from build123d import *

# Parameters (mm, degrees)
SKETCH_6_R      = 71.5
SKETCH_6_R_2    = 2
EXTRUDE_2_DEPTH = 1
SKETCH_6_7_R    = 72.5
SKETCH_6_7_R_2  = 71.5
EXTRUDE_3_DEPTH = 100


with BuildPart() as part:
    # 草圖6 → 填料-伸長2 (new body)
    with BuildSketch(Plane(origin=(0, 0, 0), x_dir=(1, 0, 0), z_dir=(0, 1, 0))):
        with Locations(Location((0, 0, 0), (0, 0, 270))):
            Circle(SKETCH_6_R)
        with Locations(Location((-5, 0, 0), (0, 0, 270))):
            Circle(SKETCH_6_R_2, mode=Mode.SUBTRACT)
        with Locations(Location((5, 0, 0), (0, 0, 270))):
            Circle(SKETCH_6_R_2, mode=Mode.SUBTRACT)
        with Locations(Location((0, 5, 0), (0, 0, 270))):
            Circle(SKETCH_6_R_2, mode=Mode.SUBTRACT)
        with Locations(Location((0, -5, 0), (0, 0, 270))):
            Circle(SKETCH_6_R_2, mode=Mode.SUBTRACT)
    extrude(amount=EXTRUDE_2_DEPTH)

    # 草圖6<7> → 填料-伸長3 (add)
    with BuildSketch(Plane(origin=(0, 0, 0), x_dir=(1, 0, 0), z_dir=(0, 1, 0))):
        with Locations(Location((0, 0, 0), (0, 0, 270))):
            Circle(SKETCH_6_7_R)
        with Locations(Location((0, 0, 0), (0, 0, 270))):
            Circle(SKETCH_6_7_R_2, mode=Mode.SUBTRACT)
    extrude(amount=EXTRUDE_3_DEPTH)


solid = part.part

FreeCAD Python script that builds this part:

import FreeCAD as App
import Part
import Sketcher

V = App.Vector
Q = App.Units.Quantity

doc = App.newDocument("Part")
body = doc.addObject("PartDesign::Body", "Body")

sketch1 = body.newObject("Sketcher::SketchObject", "Sketch")
sketch1.AttachmentSupport = (doc.getObject("XZ_Plane"), [""])
sketch1.MapMode = "FlatFace"
sketch1.addGeometry(Part.Circle(V(0, 0, 0), V(0, 0, 1), 71.5), False)
sketch1.addGeometry(Part.Circle(V(0, -5, 0), V(0, 0, 1), 2), False)
sketch1.addGeometry(Part.Circle(V(-5, 0, 0), V(0, 0, 1), 2), False)
sketch1.addGeometry(Part.Circle(V(5, 0, 0), V(0, 0, 1), 2), False)
sketch1.addGeometry(Part.Circle(V(0, 5, 0), V(0, 0, 1), 2), False)
sketch1.addConstraint(Sketcher.Constraint("Coincident", 0, 3, -1, 1))
sketch1.addConstraint(Sketcher.Constraint("Equal", 1, 2))
sketch1.addConstraint(Sketcher.Constraint("Equal", 2, 3))
sketch1.addConstraint(Sketcher.Constraint("Equal", 3, 4))
sketch1.addConstraint(Sketcher.Constraint("Symmetric", 2, 3, 3, 3, -1, 1))
sketch1.addConstraint(Sketcher.Constraint("Symmetric", 1, 3, 4, 3, -1, 1))
sketch1.addConstraint(Sketcher.Constraint("PointOnObject", 1, 3, -2))
sketch1.addConstraint(Sketcher.Constraint("PointOnObject", 2, 3, -1))
sketch1.addConstraint(Sketcher.Constraint("Diameter", 0, Q("143 mm")))
sketch1.addConstraint(Sketcher.Constraint("Diameter", 1, Q("4 mm")))
sketch1.addConstraint(Sketcher.Constraint("DistanceY", 1, 3, -1, 1, Q("5 mm")))
sketch1.addConstraint(Sketcher.Constraint("DistanceX", 2, 3, -1, 1, Q("5 mm")))
pad1 = body.newObject("PartDesign::Pad", "Pad")
pad1.Profile = sketch1
pad1.Length = 1
pad1.Reversed = True

sketch2 = body.newObject("Sketcher::SketchObject", "Sketch001")
sketch2.AttachmentSupport = (doc.getObject("XZ_Plane"), [""])
sketch2.MapMode = "FlatFace"
sketch2.addGeometry(Part.Circle(V(0, 0, 0), V(0, 0, 1), 72.5), False)
sketch2.addGeometry(Part.Circle(V(0, 0, 0), V(0, 0, 1), 71.5), False)
sketch2.addConstraint(Sketcher.Constraint("Coincident", 0, 3, -1, 1))
sketch2.addConstraint(Sketcher.Constraint("Coincident", 1, 3, -1, 1))
sketch2.addConstraint(Sketcher.Constraint("Diameter", 0, Q("145 mm")))
sketch2.addConstraint(Sketcher.Constraint("Diameter", 1, Q("143 mm")))
pad2 = body.newObject("PartDesign::Pad", "Pad001")
pad2.Profile = sketch2
pad2.Length = 100
pad2.Reversed = True

doc.recompute()
